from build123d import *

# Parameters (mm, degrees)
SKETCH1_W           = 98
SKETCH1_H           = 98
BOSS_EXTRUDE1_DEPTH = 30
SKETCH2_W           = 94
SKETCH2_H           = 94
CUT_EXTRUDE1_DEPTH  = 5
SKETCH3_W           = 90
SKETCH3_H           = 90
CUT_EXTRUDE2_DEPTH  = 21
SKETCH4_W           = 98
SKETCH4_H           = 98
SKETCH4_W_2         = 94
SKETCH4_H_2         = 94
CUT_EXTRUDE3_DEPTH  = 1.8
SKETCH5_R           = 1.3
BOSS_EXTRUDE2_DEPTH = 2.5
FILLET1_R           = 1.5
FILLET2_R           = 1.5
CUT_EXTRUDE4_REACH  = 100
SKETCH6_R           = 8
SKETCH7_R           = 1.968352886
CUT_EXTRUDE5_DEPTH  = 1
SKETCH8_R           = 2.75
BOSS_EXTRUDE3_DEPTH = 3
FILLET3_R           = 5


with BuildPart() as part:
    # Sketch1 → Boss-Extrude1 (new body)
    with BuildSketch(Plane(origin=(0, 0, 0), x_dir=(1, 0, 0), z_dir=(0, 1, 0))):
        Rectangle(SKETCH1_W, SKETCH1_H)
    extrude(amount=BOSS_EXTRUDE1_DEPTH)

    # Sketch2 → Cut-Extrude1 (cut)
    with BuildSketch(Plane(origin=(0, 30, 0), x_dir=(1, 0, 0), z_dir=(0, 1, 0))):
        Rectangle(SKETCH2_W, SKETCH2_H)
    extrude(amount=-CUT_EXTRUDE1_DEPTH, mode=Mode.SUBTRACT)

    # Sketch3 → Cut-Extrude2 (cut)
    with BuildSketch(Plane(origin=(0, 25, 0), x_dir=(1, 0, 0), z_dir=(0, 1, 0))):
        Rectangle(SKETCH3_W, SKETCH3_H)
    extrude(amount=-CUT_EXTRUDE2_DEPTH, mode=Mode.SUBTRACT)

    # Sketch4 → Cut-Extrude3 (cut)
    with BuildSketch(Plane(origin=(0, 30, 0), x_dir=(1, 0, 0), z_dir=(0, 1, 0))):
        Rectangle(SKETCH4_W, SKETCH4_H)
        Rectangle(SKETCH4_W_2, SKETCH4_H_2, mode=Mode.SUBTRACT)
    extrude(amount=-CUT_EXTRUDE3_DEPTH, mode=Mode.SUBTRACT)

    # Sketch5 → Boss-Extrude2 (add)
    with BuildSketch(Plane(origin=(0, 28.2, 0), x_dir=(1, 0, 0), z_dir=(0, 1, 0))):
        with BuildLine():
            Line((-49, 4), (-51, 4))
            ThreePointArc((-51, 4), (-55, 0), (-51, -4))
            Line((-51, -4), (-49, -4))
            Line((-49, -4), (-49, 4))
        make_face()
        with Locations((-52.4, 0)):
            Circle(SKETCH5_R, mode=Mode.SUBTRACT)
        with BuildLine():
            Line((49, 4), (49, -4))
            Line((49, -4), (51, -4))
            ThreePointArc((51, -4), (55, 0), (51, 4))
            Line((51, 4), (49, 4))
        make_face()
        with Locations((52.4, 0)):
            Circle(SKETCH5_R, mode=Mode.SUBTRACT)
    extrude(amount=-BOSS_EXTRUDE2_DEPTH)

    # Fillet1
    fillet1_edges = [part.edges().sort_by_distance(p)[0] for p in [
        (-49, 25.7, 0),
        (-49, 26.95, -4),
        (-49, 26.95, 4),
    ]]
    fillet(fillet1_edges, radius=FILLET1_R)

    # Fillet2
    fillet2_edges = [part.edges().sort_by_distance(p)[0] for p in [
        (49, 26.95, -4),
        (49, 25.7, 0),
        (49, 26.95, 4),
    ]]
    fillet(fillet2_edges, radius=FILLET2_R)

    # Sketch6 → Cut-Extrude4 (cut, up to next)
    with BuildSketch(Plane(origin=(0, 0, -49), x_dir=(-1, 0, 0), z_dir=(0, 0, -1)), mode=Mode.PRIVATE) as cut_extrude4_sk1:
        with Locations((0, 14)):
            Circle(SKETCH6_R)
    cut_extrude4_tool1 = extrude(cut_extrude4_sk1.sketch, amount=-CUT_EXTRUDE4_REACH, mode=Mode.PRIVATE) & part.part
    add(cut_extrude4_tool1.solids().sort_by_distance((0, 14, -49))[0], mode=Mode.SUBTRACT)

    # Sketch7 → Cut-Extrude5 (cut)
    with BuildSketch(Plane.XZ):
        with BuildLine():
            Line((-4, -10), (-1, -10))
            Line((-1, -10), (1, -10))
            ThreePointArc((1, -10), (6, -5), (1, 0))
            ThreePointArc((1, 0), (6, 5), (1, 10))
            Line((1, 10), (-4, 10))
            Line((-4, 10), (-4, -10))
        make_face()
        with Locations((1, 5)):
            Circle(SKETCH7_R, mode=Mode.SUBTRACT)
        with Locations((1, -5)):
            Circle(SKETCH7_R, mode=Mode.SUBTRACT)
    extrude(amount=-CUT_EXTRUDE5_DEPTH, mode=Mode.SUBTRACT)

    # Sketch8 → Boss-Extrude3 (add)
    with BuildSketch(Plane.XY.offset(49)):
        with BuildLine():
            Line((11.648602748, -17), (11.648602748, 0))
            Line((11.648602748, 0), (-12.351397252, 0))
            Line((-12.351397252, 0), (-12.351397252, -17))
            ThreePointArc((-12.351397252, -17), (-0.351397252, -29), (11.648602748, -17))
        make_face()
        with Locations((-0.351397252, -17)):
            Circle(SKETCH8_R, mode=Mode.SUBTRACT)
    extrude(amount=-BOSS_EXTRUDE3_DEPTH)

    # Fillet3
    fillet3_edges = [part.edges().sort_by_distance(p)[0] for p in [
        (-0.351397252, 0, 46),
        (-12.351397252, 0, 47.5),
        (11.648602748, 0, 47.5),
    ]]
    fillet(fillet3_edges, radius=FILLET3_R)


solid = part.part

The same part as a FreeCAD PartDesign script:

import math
import FreeCAD as App
import Part
import Sketcher
from FreeCAD import Vector
Q = App.Units.Quantity


def edges_at(feature, points):
    """Names of the edges that pass closest to the given points."""
    edges = feature.Shape.Edges
    near = lambda p: min(range(len(edges)), key=lambda i: edges[i].distToShape(Part.Vertex(*p))[0])
    return sorted({f"Edge{near(p) + 1}" for p in points})


def add_polygon(sketch, points):
    """Adds a closed chain of lines whose ends are joined by coincident constraints."""
    first, n = sketch.GeometryCount, len(points)
    for a, b in zip(points, points[1:] + points[:1]):
        sketch.addGeometry(Part.LineSegment(App.Vector(*a, 0), App.Vector(*b, 0)), False)
    for i in range(n):
        sketch.addConstraint(Sketcher.Constraint("Coincident", first + i, 2, first + (i + 1) % n, 1))

doc = App.newDocument("Part")
params = doc.addObject("Spreadsheet::Sheet", "Params")
for row, (alias, value) in enumerate([
    ("sketch1_width", "98 mm"),
    ("pad1_length", "30 mm"),
    ("sketch2_width", "94 mm"),
    ("pocket1_length", "5 mm"),
    ("sketch3_width", "90 mm"),
    ("pocket2_length", "21 mm"),
    ("sketch4_width", "98 mm"),
    ("sketch4_width2", "94 mm"),
    ("pocket3_length", "1.8 mm"),
    ("sketch5_radius", "4 mm"),
    ("sketch5_diameter", "2.6 mm"),
    ("sketch5_width", "2 mm"),
    ("pad2_length", "2.5 mm"),
    ("fillet_radius", "1.5 mm"),
    ("fillet2_radius", "1.5 mm"),
    ("sketch6_diameter", "16 mm"),
    ("sketch7_radius", "5 mm"),
    ("sketch7_width", "5 mm"),
    ("pocket5_length", "1 mm"),
    ("sketch8_radius", "12 mm"),
    ("sketch8_diameter", "5.5 mm"),
    ("sketch8_height", "17 mm"),
    ("pad3_length", "3 mm"),
    ("fillet3_radius", "5 mm"),
], start=1):
    params.set(f"A{row}", alias)
    params.set(f"B{row}", "=" + value)
    params.setAlias(f"B{row}", alias)

body = doc.addObject("PartDesign::Body", "Body")

# Sketch on XZ plane
sketch1 = doc.addObject("Sketcher::SketchObject", "Sketch")
body.addObject(sketch1)
sketch1.AttachmentSupport = (doc.XZ_Plane, [""])
sketch1.MapMode = "FlatFace"
add_polygon(sketch1, [(-49, -49), (-49, 49), (49, 49), (49, -49)])  # lines 0-3
sketch1.addConstraint(Sketcher.Constraint("Vertical", 0))
sketch1.addConstraint(Sketcher.Constraint("Horizontal", 1))
sketch1.addConstraint(Sketcher.Constraint("Vertical", 2))
sketch1.addConstraint(Sketcher.Constraint("Horizontal", 3))
sketch1.addConstraint(Sketcher.Constraint("Symmetric", 0, 2, 2, 2, -1, 1))
sketch1.addConstraint(Sketcher.Constraint("Equal", 3, 0))
sketch1.addConstraint(Sketcher.Constraint("DistanceX", 1, 1, 1, 2, Q("98 mm")))
sketch1.setExpression("Constraints[10]", "Params.sketch1_width")
pad1 = doc.addObject("PartDesign::Pad", "Pad")
body.addObject(pad1)
pad1.Profile = sketch1
pad1.setExpression("Length", "Params.pad1_length")
pad1.Reversed = True

# Sketch on XZ plane
sketch2 = doc.addObject("Sketcher::SketchObject", "Sketch001")
body.addObject(sketch2)
sketch2.AttachmentSupport = (doc.XZ_Plane, [""])
sketch2.MapMode = "FlatFace"
sketch2.AttachmentOffset = App.Placement(Vector(0, 0, -30), App.Rotation())
add_polygon(sketch2, [(-47, -47), (-47, 47), (47, 47), (47, -47)])  # lines 0-3
sketch2.addConstraint(Sketcher.Constraint("Vertical", 0))
sketch2.addConstraint(Sketcher.Constraint("Horizontal", 1))
sketch2.addConstraint(Sketcher.Constraint("Vertical", 2))
sketch2.addConstraint(Sketcher.Constraint("Horizontal", 3))
sketch2.addConstraint(Sketcher.Constraint("Symmetric", 0, 2, 2, 2, -1, 1))
sketch2.addConstraint(Sketcher.Constraint("Equal", 3, 0))
sketch2.addConstraint(Sketcher.Constraint("DistanceX", 1, 1, 1, 2, Q("94 mm")))
sketch2.setExpression("Constraints[10]", "Params.sketch2_width")
pocket1 = doc.addObject("PartDesign::Pocket", "Pocket")
body.addObject(pocket1)
pocket1.Profile = sketch2
pocket1.setExpression("Length", "Params.pocket1_length")
pocket1.Reversed = True

# Sketch on XZ plane
sketch3 = doc.addObject("Sketcher::SketchObject", "Sketch002")
body.addObject(sketch3)
sketch3.AttachmentSupport = (doc.XZ_Plane, [""])
sketch3.MapMode = "FlatFace"
sketch3.AttachmentOffset = App.Placement(Vector(0, 0, -25), App.Rotation())
add_polygon(sketch3, [(-45, -45), (-45, 45), (45, 45), (45, -45)])  # lines 0-3
sketch3.addConstraint(Sketcher.Constraint("Vertical", 0))
sketch3.addConstraint(Sketcher.Constraint("Horizontal", 1))
sketch3.addConstraint(Sketcher.Constraint("Vertical", 2))
sketch3.addConstraint(Sketcher.Constraint("Horizontal", 3))
sketch3.addConstraint(Sketcher.Constraint("Symmetric", 0, 2, 2, 2, -1, 1))
sketch3.addConstraint(Sketcher.Constraint("Equal", 3, 0))
sketch3.addConstraint(Sketcher.Constraint("DistanceX", 1, 1, 1, 2, Q("90 mm")))
sketch3.setExpression("Constraints[10]", "Params.sketch3_width")
pocket2 = doc.addObject("PartDesign::Pocket", "Pocket001")
body.addObject(pocket2)
pocket2.Profile = sketch3
pocket2.setExpression("Length", "Params.pocket2_length")
pocket2.Reversed = True

# Sketch on XZ plane
sketch4 = doc.addObject("Sketcher::SketchObject", "Sketch003")
body.addObject(sketch4)
sketch4.AttachmentSupport = (doc.XZ_Plane, [""])
sketch4.MapMode = "FlatFace"
sketch4.AttachmentOffset = App.Placement(Vector(0, 0, -30), App.Rotation())
add_polygon(sketch4, [(-49, -49), (-49, 49), (49, 49), (49, -49)])  # lines 0-3
add_polygon(sketch4, [(47, 47), (-47, 47), (-47, -47), (47, -47)])  # lines 4-7
sketch4.addConstraint(Sketcher.Constraint("Vertical", 0))
sketch4.addConstraint(Sketcher.Constraint("Horizontal", 1))
sketch4.addConstraint(Sketcher.Constraint("Vertical", 2))
sketch4.addConstraint(Sketcher.Constraint("Horizontal", 3))
sketch4.addConstraint(Sketcher.Constraint("Horizontal", 4))
sketch4.addConstraint(Sketcher.Constraint("Vertical", 5))
sketch4.addConstraint(Sketcher.Constraint("Horizontal", 6))
sketch4.addConstraint(Sketcher.Constraint("Vertical", 7))
sketch4.addConstraint(Sketcher.Constraint("Symmetric", 0, 2, 2, 2, -1, 1))
sketch4.addConstraint(Sketcher.Constraint("Symmetric", 4, 2, 6, 2, -1, 1))
sketch4.addConstraint(Sketcher.Constraint("Equal", 3, 0))
sketch4.addConstraint(Sketcher.Constraint("Equal", 6, 5))
sketch4.addConstraint(Sketcher.Constraint("DistanceX", 1, 1, 1, 2, Q("98 mm")))
sketch4.addConstraint(Sketcher.Constraint("DistanceX", 4, 2, 4, 1, Q("94 mm")))
sketch4.setExpression("Constraints[20]", "Params.sketch4_width")
sketch4.setExpression("Constraints[21]", "Params.sketch4_width2")
pocket3 = doc.addObject("PartDesign::Pocket", "Pocket002")
body.addObject(pocket3)
pocket3.Profile = sketch4
pocket3.setExpression("Length", "Params.pocket3_length")
pocket3.Reversed = True

# Sketch on XZ plane
sketch5 = doc.addObject("Sketcher::SketchObject", "Sketch004")
body.addObject(sketch5)
sketch5.AttachmentSupport = (doc.XZ_Plane, [""])
sketch5.MapMode = "FlatFace"
sketch5.AttachmentOffset = App.Placement(Vector(0, 0, -28.2), App.Rotation())
sketch5.addGeometry(Part.LineSegment(Vector(-49, -4, 0), Vector(-51, -4, 0)), False)
sketch5.addGeometry(Part.ArcOfCircle(Part.Circle(Vector(-51, 0, 0), Vector(0, 0, 1), 4), math.radians(90), math.radians(270)), False)
sketch5.addGeometry(Part.LineSegment(Vector(-51, 4, 0), Vector(-49, 4, 0)), False)
sketch5.addGeometry(Part.LineSegment(Vector(-49, 4, 0), Vector(-49, -4, 0)), False)
sketch5.addGeometry(Part.Circle(Vector(-52.4, 0, 0), Vector(0, 0, 1), 1.3), False)
sketch5.addGeometry(Part.LineSegment(Vector(49, -4, 0), Vector(49, 4, 0)), False)
sketch5.addGeometry(Part.LineSegment(Vector(49, 4, 0), Vector(51, 4, 0)), False)
sketch5.addGeometry(Part.ArcOfCircle(Part.Circle(Vector(51, 0, 0), Vector(0, 0, 1), 4), math.radians(-90), math.radians(90)), False)
sketch5.addGeometry(Part.LineSegment(Vector(51, -4, 0), Vector(49, -4, 0)), False)
sketch5.addGeometry(Part.Circle(Vector(52.4, 0, 0), Vector(0, 0, 1), 1.3), False)
sketch5.addConstraint(Sketcher.Constraint("Tangent", 0, 2, 1, 2))
sketch5.addConstraint(Sketcher.Constraint("Tangent", 1, 1, 2, 1))
sketch5.addConstraint(Sketcher.Constraint("Coincident", 2, 2, 3, 1))
sketch5.addConstraint(Sketcher.Constraint("Coincident", 3, 2, 0, 1))
sketch5.addConstraint(Sketcher.Constraint("Coincident", 5, 2, 6, 1))
sketch5.addConstraint(Sketcher.Constraint("Tangent", 6, 2, 7, 2))
sketch5.addConstraint(Sketcher.Constraint("Tangent", 7, 1, 8, 1))
sketch5.addConstraint(Sketcher.Constraint("Coincident", 8, 2, 5, 1))
sketch5.addConstraint(Sketcher.Constraint("Horizontal", 0))
sketch5.addConstraint(Sketcher.Constraint("Horizontal", 2))
sketch5.addConstraint(Sketcher.Constraint("Vertical", 3))
sketch5.addConstraint(Sketcher.Constraint("Vertical", 5))
sketch5.addConstraint(Sketcher.Constraint("Horizontal", 6))
sketch5.addConstraint(Sketcher.Constraint("Horizontal", 8))
sketch5.addConstraint(Sketcher.Constraint("Equal", 1, 7))
sketch5.addConstraint(Sketcher.Constraint("Equal", 4, 9))
sketch5.addConstraint(Sketcher.Constraint("Symmetric", 1, 3, 7, 3, -1, 1))
sketch5.addConstraint(Sketcher.Constraint("Symmetric", 4, 3, 9, 3, -1, 1))
sketch5.addConstraint(Sketcher.Constraint("Symmetric", 2, 2, 5, 2, -2))
sketch5.addConstraint(Sketcher.Constraint("PointOnObject", 4, 3, -1))
sketch5.addConstraint(Sketcher.Constraint("Radius", 1, Q("4 mm")))
sketch5.addConstraint(Sketcher.Constraint("Diameter", 4, Q("2.6 mm")))
sketch5.addConstraint(Sketcher.Constraint("DistanceX", 0, 2, 0, 1, Q("2 mm")))
sketch5.addConstraint(Sketcher.Constraint("DistanceX", 1, 3, -1, 1, Q("51 mm")))
sketch5.addConstraint(Sketcher.Constraint("DistanceX", 4, 3, -1, 1, Q("52.4 mm")))
sketch5.setExpression("Constraints[20]", "Params.sketch5_radius")
sketch5.setExpression("Constraints[21]", "Params.sketch5_diameter")
sketch5.setExpression("Constraints[22]", "Params.sketch5_width")
pad2 = doc.addObject("PartDesign::Pad", "Pad001")
body.addObject(pad2)
pad2.Profile = sketch5
pad2.setExpression("Length", "Params.pad2_length")
doc.recompute()

fillet = doc.addObject("PartDesign::Fillet", "Fillet")
body.addObject(fillet)
fillet.Base = (pad2, edges_at(pad2, [(-49, 25.7, 0), (-49, 26.95, -4), (-49, 26.95, 4)]))
fillet.setExpression("Radius", "Params.fillet_radius")
doc.recompute()

fillet2 = doc.addObject("PartDesign::Fillet", "Fillet001")
body.addObject(fillet2)
fillet2.Base = (fillet, edges_at(fillet, [(49, 26.95, -4), (49, 25.7, 0), (49, 26.95, 4)]))
fillet2.setExpression("Radius", "Params.fillet2_radius")

# Sketch on XY plane
sketch6 = doc.addObject("Sketcher::SketchObject", "Sketch005")
body.addObject(sketch6)
sketch6.AttachmentSupport = (doc.XY_Plane, [""])
sketch6.MapMode = "FlatFace"
sketch6.AttachmentOffset = App.Placement(Vector(0, 0, -49), App.Rotation())
sketch6.addGeometry(Part.Circle(Vector(0, 14, 0), Vector(0, 0, 1), 8), False)
sketch6.addConstraint(Sketcher.Constraint("PointOnObject", 0, 3, -2))
sketch6.addConstraint(Sketcher.Constraint("Diameter", 0, Q("16 mm")))
sketch6.addConstraint(Sketcher.Constraint("DistanceY", -1, 1, 0, 3, Q("14 mm")))
sketch6.setExpression("Constraints[1]", "Params.sketch6_diameter")
pocket4 = doc.addObject("PartDesign::Pocket", "Pocket003")
body.addObject(pocket4)
pocket4.Profile = sketch6
pocket4.Type = "UpToFirst"
pocket4.Reversed = True

# Sketch on XZ plane
sketch7 = doc.addObject("Sketcher::SketchObject", "Sketch006")
body.addObject(sketch7)
sketch7.AttachmentSupport = (doc.XZ_Plane, [""])
sketch7.MapMode = "FlatFace"
sketch7.addGeometry(Part.LineSegment(Vector(-4, -10, 0), Vector(1, -10, 0)), False)
sketch7.addGeometry(Part.ArcOfCircle(Part.Circle(Vector(1, -5, 0), Vector(0, 0, 1), 5), math.radians(-90), math.radians(90)), False)
sketch7.addGeometry(Part.ArcOfCircle(Part.Circle(Vector(1, 5, 0), Vector(0, 0, 1), 5), math.radians(-90), math.radians(90)), False)
sketch7.addGeometry(Part.LineSegment(Vector(1, 10, 0), Vector(-4, 10, 0)), False)
sketch7.addGeometry(Part.LineSegment(Vector(-4, 10, 0), Vector(-4, -10, 0)), False)
sketch7.addGeometry(Part.Circle(Vector(1, -5, 0), Vector(0, 0, 1), 2), False)
sketch7.addGeometry(Part.Circle(Vector(1, 5, 0), Vector(0, 0, 1), 2), False)
sketch7.addConstraint(Sketcher.Constraint("Tangent", 0, 2, 1, 1))
sketch7.addConstraint(Sketcher.Constraint("Tangent", 1, 2, 2, 1))
sketch7.addConstraint(Sketcher.Constraint("Tangent", 2, 2, 3, 1))
sketch7.addConstraint(Sketcher.Constraint("Coincident", 3, 2, 4, 1))
sketch7.addConstraint(Sketcher.Constraint("Coincident", 4, 2, 0, 1))
sketch7.addConstraint(Sketcher.Constraint("Horizontal", 0))
sketch7.addConstraint(Sketcher.Constraint("Horizontal", 3))
sketch7.addConstraint(Sketcher.Constraint("Vertical", 4))
sketch7.addConstraint(Sketcher.Constraint("Coincident", 5, 3, 1, 3))
sketch7.addConstraint(Sketcher.Constraint("Coincident", 6, 3, 2, 3))
sketch7.addConstraint(Sketcher.Constraint("Equal", 1, 2))
sketch7.addConstraint(Sketcher.Constraint("Equal", 5, 6))
sketch7.addConstraint(Sketcher.Constraint("Symmetric", 1, 3, 2, 3, -1))
sketch7.addConstraint(Sketcher.Constraint("Radius", 1, Q("5 mm")))
sketch7.addConstraint(Sketcher.Constraint("DistanceX", 0, 1, 0, 2, Q("5 mm")))
sketch7.addConstraint(Sketcher.Constraint("DistanceX", -1, 1, 1, 3, Q("1 mm")))
sketch7.addConstraint(Sketcher.Constraint("Diameter", 5, Q("3.936706 mm")))
sketch7.setExpression("Constraints[13]", "Params.sketch7_radius")
sketch7.setExpression("Constraints[14]", "Params.sketch7_width")
pocket5 = doc.addObject("PartDesign::Pocket", "Pocket004")
body.addObject(pocket5)
pocket5.Profile = sketch7
pocket5.setExpression("Length", "Params.pocket5_length")

# Sketch on XY plane
sketch8 = doc.addObject("Sketcher::SketchObject", "Sketch007")
body.addObject(sketch8)
sketch8.AttachmentSupport = (doc.XY_Plane, [""])
sketch8.MapMode = "FlatFace"
sketch8.AttachmentOffset = App.Placement(Vector(0, 0, 49), App.Rotation())
sketch8.addGeometry(Part.LineSegment(Vector(11.6, -17, 0), Vector(11.6, 0, 0)), False)
sketch8.addGeometry(Part.LineSegment(Vector(11.6, 0, 0), Vector(-12.4, 0, 0)), False)
sketch8.addGeometry(Part.LineSegment(Vector(-12.4, 0, 0), Vector(-12.4, -17, 0)), False)
sketch8.addGeometry(Part.ArcOfCircle(Part.Circle(Vector(-0.4, -17, 0), Vector(0, 0, 1), 12), math.radians(180), math.radians(360)), False)
sketch8.addGeometry(Part.Circle(Vector(-0.4, -17, 0), Vector(0, 0, 1), 2.8), False)
sketch8.addConstraint(Sketcher.Constraint("Coincident", 0, 2, 1, 1))
sketch8.addConstraint(Sketcher.Constraint("Coincident", 1, 2, 2, 1))
sketch8.addConstraint(Sketcher.Constraint("Tangent", 2, 2, 3, 1))
sketch8.addConstraint(Sketcher.Constraint("Tangent", 3, 2, 0, 1))
sketch8.addConstraint(Sketcher.Constraint("Vertical", 0))
sketch8.addConstraint(Sketcher.Constraint("Horizontal", 1))
sketch8.addConstraint(Sketcher.Constraint("Vertical", 2))
sketch8.addConstraint(Sketcher.Constraint("Coincident", 4, 3, 3, 3))
sketch8.addConstraint(Sketcher.Constraint("PointOnObject", 0, 2, -1))
sketch8.addConstraint(Sketcher.Constraint("Radius", 3, Q("12 mm")))
sketch8.addConstraint(Sketcher.Constraint("Diameter", 4, Q("5.5 mm")))
sketch8.addConstraint(Sketcher.Constraint("DistanceY", 0, 1, 0, 2, Q("17 mm")))
sketch8.addConstraint(Sketcher.Constraint("DistanceX", 3, 3, -1, 1, Q("0.351397 mm")))
sketch8.setExpression("Constraints[9]", "Params.sketch8_radius")
sketch8.setExpression("Constraints[10]", "Params.sketch8_diameter")
sketch8.setExpression("Constraints[11]", "Params.sketch8_height")
pad3 = doc.addObject("PartDesign::Pad", "Pad002")
body.addObject(pad3)
pad3.Profile = sketch8
pad3.setExpression("Length", "Params.pad3_length")
pad3.Reversed = True
doc.recompute()

fillet3 = doc.addObject("PartDesign::Fillet", "Fillet002")
body.addObject(fillet3)
fillet3.Base = (pad3, edges_at(pad3, [(-0.351, 0, 46), (-12.351, 0, 47.5), (11.649, 0, 47.5)]))
fillet3.setExpression("Radius", "Params.fillet3_radius")

doc.recompute()
